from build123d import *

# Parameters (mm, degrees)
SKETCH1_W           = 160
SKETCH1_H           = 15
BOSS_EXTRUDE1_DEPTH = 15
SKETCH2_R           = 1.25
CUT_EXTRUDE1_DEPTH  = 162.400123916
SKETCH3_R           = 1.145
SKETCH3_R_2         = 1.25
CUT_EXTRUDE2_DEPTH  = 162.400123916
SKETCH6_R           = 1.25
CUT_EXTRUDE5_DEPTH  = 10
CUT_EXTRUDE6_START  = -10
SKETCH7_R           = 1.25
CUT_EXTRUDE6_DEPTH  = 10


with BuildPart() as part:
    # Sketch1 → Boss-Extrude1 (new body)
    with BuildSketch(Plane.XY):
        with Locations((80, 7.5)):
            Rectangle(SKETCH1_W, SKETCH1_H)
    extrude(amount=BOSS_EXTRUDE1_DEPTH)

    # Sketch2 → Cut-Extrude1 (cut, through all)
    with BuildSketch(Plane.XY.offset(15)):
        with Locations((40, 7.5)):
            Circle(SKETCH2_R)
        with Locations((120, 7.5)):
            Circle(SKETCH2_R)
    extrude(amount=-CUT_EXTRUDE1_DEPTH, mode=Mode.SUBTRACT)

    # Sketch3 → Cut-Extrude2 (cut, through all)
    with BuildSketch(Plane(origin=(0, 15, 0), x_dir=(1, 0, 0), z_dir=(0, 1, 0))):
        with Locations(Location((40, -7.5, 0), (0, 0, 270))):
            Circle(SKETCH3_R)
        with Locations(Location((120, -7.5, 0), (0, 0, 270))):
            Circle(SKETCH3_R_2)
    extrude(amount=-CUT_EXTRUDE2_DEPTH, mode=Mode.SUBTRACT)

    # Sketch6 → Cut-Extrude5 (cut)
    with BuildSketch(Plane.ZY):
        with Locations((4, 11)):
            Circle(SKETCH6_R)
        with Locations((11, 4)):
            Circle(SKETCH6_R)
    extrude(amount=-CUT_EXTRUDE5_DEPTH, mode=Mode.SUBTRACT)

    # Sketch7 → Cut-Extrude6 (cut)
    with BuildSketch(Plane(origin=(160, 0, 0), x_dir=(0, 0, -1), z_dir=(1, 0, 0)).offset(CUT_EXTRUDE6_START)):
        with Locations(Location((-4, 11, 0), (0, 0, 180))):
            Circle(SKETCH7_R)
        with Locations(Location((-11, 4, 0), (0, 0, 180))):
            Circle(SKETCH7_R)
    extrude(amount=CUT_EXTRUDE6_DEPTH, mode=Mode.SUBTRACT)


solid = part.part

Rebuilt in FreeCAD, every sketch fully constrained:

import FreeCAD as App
import Part
import Sketcher

V = App.Vector


def add_polygon(sketch, points):
    """Adds a closed chain of lines whose ends are joined by coincident constraints."""
    first, n = sketch.GeometryCount, len(points)
    for a, b in zip(points, points[1:] + points[:1]):
        sketch.addGeometry(Part.LineSegment(App.Vector(*a, 0), App.Vector(*b, 0)), False)
    for i in range(n):
        sketch.addConstraint(Sketcher.Constraint("Coincident", first + i, 2, first + (i + 1) % n, 1))

doc = App.newDocument("Part")
body = doc.addObject("PartDesign::Body", "Body")

sketch1 = body.newObject("Sketcher::SketchObject", "Sketch")
sketch1.AttachmentSupport = (doc.getObject("XY_Plane"), [""])
sketch1.MapMode = "FlatFace"
add_polygon(sketch1, [(0, 15), (0, 0), (160, 0), (160, 15)])
sketch1.addConstraint([
    Sketcher.Constraint("Vertical", 0),
    Sketcher.Constraint("Horizontal", 1),
    Sketcher.Constraint("Vertical", 2),
    Sketcher.Constraint("Horizontal", 3),
    Sketcher.Constraint("Coincident", 0, 2, -1, 1),
    Sketcher.Constraint("DistanceX", 1, 1, 1, 2, 160.0),
    Sketcher.Constraint("DistanceY", 0, 2, 0, 1, 15.0),
])
pad1 = body.newObject("PartDesign::Pad", "Pad")
pad1.Profile = sketch1
pad1.Length = 15

sketch2 = body.newObject("Sketcher::SketchObject", "Sketch001")
sketch2.AttachmentSupport = (doc.getObject("XY_Plane"), [""])
sketch2.MapMode = "FlatFace"
sketch2.AttachmentOffset = App.Placement(V(0, 0, 15), App.Rotation())
sketch2.addGeometry([
    Part.Circle(V(40, 7.5, 0), V(0, 0, 1), 1.25),
    Part.Circle(V(120, 7.5, 0), V(0, 0, 1), 1.25),
], False)
sketch2.addConstraint([
    Sketcher.Constraint("Equal", 0, 1),
    Sketcher.Constraint("Horizontal", 0, 3, 1, 3),
    Sketcher.Constraint("Diameter", 0, 2.5),
    Sketcher.Constraint("DistanceX", -1, 1, 0, 3, 40.0),
    Sketcher.Constraint("DistanceX", -1, 1, 1, 3, 120.0),
    Sketcher.Constraint("DistanceY", -1, 1, 0, 3, 7.5),
])
pocket1 = body.newObject("PartDesign::Pocket", "Pocket")
pocket1.Profile = sketch2
pocket1.Type = "ThroughAll"

sketch3 = body.newObject("Sketcher::SketchObject", "Sketch002")
sketch3.AttachmentSupport = (doc.getObject("XZ_Plane"), [""])
sketch3.MapMode = "FlatFace"
sketch3.AttachmentOffset = App.Placement(V(0, 0, -15), App.Rotation())
sketch3.addGeometry([
    Part.Circle(V(40, 7.5, 0), V(0, 0, 1), 1.145),
    Part.Circle(V(120, 7.5, 0), V(0, 0, 1), 1.25),
], False)
sketch3.addConstraint([
    Sketcher.Constraint("Horizontal", 0, 3, 1, 3),
    Sketcher.Constraint("Diameter", 1, 2.5),
    Sketcher.Constraint("Diameter", 0, 2.29),
    Sketcher.Constraint("DistanceX", -1, 1, 0, 3, 40.0),
    Sketcher.Constraint("DistanceX", -1, 1, 1, 3, 120.0),
    Sketcher.Constraint("DistanceY", -1, 1, 0, 3, 7.5),
])
pocket2 = body.newObject("PartDesign::Pocket", "Pocket001")
pocket2.Profile = sketch3
pocket2.Type = "ThroughAll"
pocket2.Reversed = True

sketch4 = body.newObject("Sketcher::SketchObject", "Sketch003")
sketch4.AttachmentSupport = (doc.getObject("YZ_Plane"), [""])
sketch4.MapMode = "FlatFace"
sketch4.addGeometry([
    Part.Circle(V(11, 4, 0), V(0, 0, 1), 1.25),
    Part.Circle(V(4, 11, 0), V(0, 0, 1), 1.25),
], False)
sketch4.addConstraint([
    Sketcher.Constraint("Equal", 0, 1),
    Sketcher.Constraint("Diameter", 0, 2.5),
    Sketcher.Constraint("DistanceX", -1, 1, 0, 3, 11.0),
    Sketcher.Constraint("DistanceY", -1, 1, 0, 3, 4.0),
    Sketcher.Constraint("DistanceX", -1, 1, 1, 3, 4.0),
    Sketcher.Constraint("DistanceY", -1, 1, 1, 3, 11.0),
])
pocket3 = body.newObject("PartDesign::Pocket", "Pocket002")
pocket3.Profile = sketch4
pocket3.Length = 10
pocket3.Reversed = True

sketch5 = body.newObject("Sketcher::SketchObject", "Sketch004")
sketch5.AttachmentSupport = (doc.getObject("YZ_Plane"), [""])
sketch5.MapMode = "FlatFace"
sketch5.AttachmentOffset = App.Placement(V(0, 0, 150), App.Rotation())
sketch5.addGeometry([
    Part.Circle(V(11, 4, 0), V(0, 0, 1), 1.25),
    Part.Circle(V(4, 11, 0), V(0, 0, 1), 1.25),
], False)
sketch5.addConstraint([
    Sketcher.Constraint("Equal", 0, 1),
    Sketcher.Constraint("Diameter", 0, 2.5),
    Sketcher.Constraint("DistanceX", -1, 1, 0, 3, 11.0),
    Sketcher.Constraint("DistanceY", -1, 1, 0, 3, 4.0),
    Sketcher.Constraint("DistanceX", -1, 1, 1, 3, 4.0),
    Sketcher.Constraint("DistanceY", -1, 1, 1, 3, 11.0),
])
pocket4 = body.newObject("PartDesign::Pocket", "Pocket003")
pocket4.Profile = sketch5
pocket4.Length = 10
pocket4.Reversed = True

doc.recompute()
